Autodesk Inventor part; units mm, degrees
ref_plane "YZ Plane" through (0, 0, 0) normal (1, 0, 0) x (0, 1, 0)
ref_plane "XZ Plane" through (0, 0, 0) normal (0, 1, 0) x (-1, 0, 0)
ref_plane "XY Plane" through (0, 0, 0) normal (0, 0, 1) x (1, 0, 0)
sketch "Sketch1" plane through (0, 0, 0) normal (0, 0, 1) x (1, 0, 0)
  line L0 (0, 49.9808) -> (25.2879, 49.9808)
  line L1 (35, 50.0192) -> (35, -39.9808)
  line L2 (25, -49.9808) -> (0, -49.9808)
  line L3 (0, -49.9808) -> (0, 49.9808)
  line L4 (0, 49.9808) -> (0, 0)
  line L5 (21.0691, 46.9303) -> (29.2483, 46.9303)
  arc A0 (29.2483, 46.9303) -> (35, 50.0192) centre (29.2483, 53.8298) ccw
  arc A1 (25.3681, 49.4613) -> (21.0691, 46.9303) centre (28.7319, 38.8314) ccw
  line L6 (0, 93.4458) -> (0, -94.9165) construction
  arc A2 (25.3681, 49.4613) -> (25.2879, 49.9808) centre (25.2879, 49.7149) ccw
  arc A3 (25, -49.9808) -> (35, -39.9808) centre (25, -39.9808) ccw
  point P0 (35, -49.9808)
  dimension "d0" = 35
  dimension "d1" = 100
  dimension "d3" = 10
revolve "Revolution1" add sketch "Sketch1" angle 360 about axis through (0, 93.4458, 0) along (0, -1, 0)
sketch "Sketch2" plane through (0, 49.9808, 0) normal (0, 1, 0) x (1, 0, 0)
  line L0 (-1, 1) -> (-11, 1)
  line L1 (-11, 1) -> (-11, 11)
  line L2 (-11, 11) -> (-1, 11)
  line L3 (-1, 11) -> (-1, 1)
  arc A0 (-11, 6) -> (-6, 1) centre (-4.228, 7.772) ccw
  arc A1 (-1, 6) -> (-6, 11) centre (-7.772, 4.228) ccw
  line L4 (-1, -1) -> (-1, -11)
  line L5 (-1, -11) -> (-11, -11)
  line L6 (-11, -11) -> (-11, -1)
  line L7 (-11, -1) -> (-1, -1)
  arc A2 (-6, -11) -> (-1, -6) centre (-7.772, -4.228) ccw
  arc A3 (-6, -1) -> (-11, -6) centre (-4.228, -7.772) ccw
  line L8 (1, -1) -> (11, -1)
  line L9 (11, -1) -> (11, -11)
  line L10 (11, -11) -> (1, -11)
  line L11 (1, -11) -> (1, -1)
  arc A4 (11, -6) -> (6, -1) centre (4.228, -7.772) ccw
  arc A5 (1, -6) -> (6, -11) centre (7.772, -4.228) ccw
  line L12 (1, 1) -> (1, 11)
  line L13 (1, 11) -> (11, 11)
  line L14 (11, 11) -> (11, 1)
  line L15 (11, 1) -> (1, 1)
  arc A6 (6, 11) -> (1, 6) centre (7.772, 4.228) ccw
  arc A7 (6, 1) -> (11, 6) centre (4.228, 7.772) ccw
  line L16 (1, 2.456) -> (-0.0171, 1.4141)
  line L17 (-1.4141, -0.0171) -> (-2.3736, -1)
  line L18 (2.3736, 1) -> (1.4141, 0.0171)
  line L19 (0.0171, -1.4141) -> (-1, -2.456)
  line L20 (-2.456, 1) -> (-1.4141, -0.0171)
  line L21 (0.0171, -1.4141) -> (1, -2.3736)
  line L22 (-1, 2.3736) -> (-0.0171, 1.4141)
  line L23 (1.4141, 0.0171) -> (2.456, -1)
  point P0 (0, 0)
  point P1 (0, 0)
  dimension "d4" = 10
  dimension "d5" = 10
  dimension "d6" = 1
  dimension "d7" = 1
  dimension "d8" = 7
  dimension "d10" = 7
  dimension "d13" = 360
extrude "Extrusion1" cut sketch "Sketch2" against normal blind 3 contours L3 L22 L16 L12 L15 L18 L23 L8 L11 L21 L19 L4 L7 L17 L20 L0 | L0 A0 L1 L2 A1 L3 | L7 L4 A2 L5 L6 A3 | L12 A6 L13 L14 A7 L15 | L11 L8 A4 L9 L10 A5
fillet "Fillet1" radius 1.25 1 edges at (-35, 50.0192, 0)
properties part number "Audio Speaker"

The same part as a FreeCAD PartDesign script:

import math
import FreeCAD as App
import Part
import Sketcher

V = App.Vector
Q = App.Units.Quantity


def edges_at(feature, points):
    """Names of the edges that pass closest to the given points."""
    edges = feature.Shape.Edges
    near = lambda p: min(range(len(edges)), key=lambda i: edges[i].distToShape(Part.Vertex(*p))[0])
    return sorted({f"Edge{near(p) + 1}" for p in points})

doc = App.newDocument("Part")
body = doc.addObject("PartDesign::Body", "Body")

# Sketch on XY plane
sketch1 = body.newObject("Sketcher::SketchObject", "Sketch")
sketch1.AttachmentSupport = (doc.getObject("XY_Plane"), [""])
sketch1.MapMode = "FlatFace"
sketch1.addGeometry(Part.LineSegment(V(25.29, 49.98, 0), V(0, 49.98, 0)), False)
sketch1.addGeometry(Part.LineSegment(V(0, 49.98, 0), V(0, -49.98, 0)), False)
sketch1.addGeometry(Part.LineSegment(V(0, -49.98, 0), V(25, -49.98, 0)), False)
sketch1.addGeometry(Part.ArcOfCircle(Part.Circle(V(25, -39.98, 0), V(0, 0, 1), 10), math.radians(-90), math.radians(0)), False)
sketch1.addGeometry(Part.LineSegment(V(35, -39.98, 0), V(35, 50.02, 0)), False)
sketch1.addGeometry(Part.ArcOfCircle(Part.Circle(V(29.25, 53.83, 0), V(0, 0, 1), 6.9), math.radians(-90), math.radians(-34)), False)
sketch1.addGeometry(Part.LineSegment(V(29.25, 46.93, 0), V(21.07, 46.93, 0)), False)
sketch1.addGeometry(Part.ArcOfCircle(Part.Circle(V(28.73, 38.83, 0), V(0, 0, 1), 11.15), math.radians(108), math.radians(133)), False)
sketch1.addGeometry(Part.ArcOfCircle(Part.Circle(V(25.29, 49.71, 0), V(0, 0, 1), 0.27), math.radians(-72), math.radians(90)), False)
sketch1.addConstraint(Sketcher.Constraint("Coincident", 0, 2, 1, 1))
sketch1.addConstraint(Sketcher.Constraint("Coincident", 1, 2, 2, 1))
sketch1.addConstraint(Sketcher.Constraint("Tangent", 2, 2, 3, 1))
sketch1.addConstraint(Sketcher.Constraint("Tangent", 3, 2, 4, 1))
sketch1.addConstraint(Sketcher.Constraint("Coincident", 4, 2, 5, 2))
sketch1.addConstraint(Sketcher.Constraint("Tangent", 5, 1, 6, 1))
sketch1.addConstraint(Sketcher.Constraint("Coincident", 6, 2, 7, 2))
sketch1.addConstraint(Sketcher.Constraint("Tangent", 7, 1, 8, 1))
sketch1.addConstraint(Sketcher.Constraint("Tangent", 8, 2, 0, 1))
sketch1.addConstraint(Sketcher.Constraint("Horizontal", 0))
sketch1.addConstraint(Sketcher.Constraint("Vertical", 1))
sketch1.addConstraint(Sketcher.Constraint("Horizontal", 2))
sketch1.addConstraint(Sketcher.Constraint("Vertical", 4))
sketch1.addConstraint(Sketcher.Constraint("Horizontal", 6))
sketch1.addConstraint(Sketcher.Constraint("Symmetric", 0, 2, 1, 2, -1, 1))
sketch1.addConstraint(Sketcher.Constraint("Radius", 3, Q("10 mm")))
sketch1.addConstraint(Sketcher.Constraint("DistanceX", -1, 1, 3, 2, Q("35 mm")))
sketch1.addConstraint(Sketcher.Constraint("DistanceY", 4, 1, 4, 2, Q("90 mm")))
sketch1.addConstraint(Sketcher.Constraint("Radius", 8, Q("0.266 mm")))
sketch1.addConstraint(Sketcher.Constraint("Radius", 5, Q("6.8995 mm")))
sketch1.addConstraint(Sketcher.Constraint("Radius", 7, Q("11.1494 mm")))
sketch1.addConstraint(Sketcher.Constraint("DistanceX", 0, 2, 0, 1, Q("25.288 mm")))
sketch1.addConstraint(Sketcher.Constraint("DistanceX", 6, 2, 6, 1, Q("8.1792 mm")))
sketch1.addConstraint(Sketcher.Constraint("DistanceY", 1, 2, 1, 1, Q("99.9616 mm")))
sketch1.addConstraint(Sketcher.Constraint("DistanceX", -1, 1, 7, 3, Q("28.732 mm")))
revolution = body.newObject("PartDesign::Revolution", "Revolution")
revolution.Profile = sketch1
revolution.ReferenceAxis = (sketch1, ["V_Axis"])
revolution.Angle = 360

# Sketch on XZ plane
sketch2 = body.newObject("Sketcher::SketchObject", "Sketch001")
sketch2.AttachmentSupport = (doc.getObject("XZ_Plane"), [""])
sketch2.MapMode = "FlatFace"
sketch2.AttachmentOffset = App.Placement(V(0, 0, -49.9808), App.Rotation())
sketch2.addGeometry(Part.LineSegment(V(0, -1.4, 0), V(-1, -2.4, 0)), False)
sketch2.addGeometry(Part.LineSegment(V(-1, -2.4, 0), V(-1, -6, 0)), False)
sketch2.addGeometry(Part.ArcOfCircle(Part.Circle(V(-7.8, -4.2, 0), V(0, 0, 1), 7), math.radians(-75), math.radians(-15)), False)
sketch2.addGeometry(Part.LineSegment(V(-6, -11, 0), V(-11, -11, 0)), False)
sketch2.addGeometry(Part.LineSegment(V(-11, -11, 0), V(-11, -6, 0)), False)
sketch2.addGeometry(Part.ArcOfCircle(Part.Circle(V(-4.2, -7.8, 0), V(0, 0, 1), 7), math.radians(105), math.radians(165)), False)
sketch2.addGeometry(Part.LineSegment(V(-6, -1, 0), V(-2.5, -1, 0)), False)
sketch2.addGeometry(Part.LineSegment(V(-2.5, -1, 0), V(-1.4, 0, 0)), False)
sketch2.addGeometry(Part.LineSegment(V(-1.4, 0, 0), V(-2.4, 1, 0)), False)
sketch2.addGeometry(Part.LineSegment(V(-2.4, 1, 0), V(-6, 1, 0)), False)
sketch2.addGeometry(Part.ArcOfCircle(Part.Circle(V(-4.2, 7.8, 0), V(0, 0, 1), 7), math.radians(-165), math.radians(-105)), False)
sketch2.addGeometry(Part.LineSegment(V(-11, 6, 0), V(-11, 11, 0)), False)
sketch2.addGeometry(Part.LineSegment(V(-11, 11, 0), V(-6, 11, 0)), False)
sketch2.addGeometry(Part.ArcOfCircle(Part.Circle(V(-7.8, 4.2, 0), V(0, 0, 1), 7), math.radians(15), math.radians(75)), False)
sketch2.addGeometry(Part.LineSegment(V(-1, 6, 0), V(-1, 2.5, 0)), False)
sketch2.addGeometry(Part.LineSegment(V(-1, 2.5, 0), V(0, 1.4, 0)), False)
sketch2.addGeometry(Part.LineSegment(V(0, 1.4, 0), V(1, 2.4, 0)), False)
sketch2.addGeometry(Part.LineSegment(V(1, 2.4, 0), V(1, 6, 0)), False)
sketch2.addGeometry(Part.ArcOfCircle(Part.Circle(V(7.8, 4.2, 0), V(0, 0, 1), 7), math.radians(105), math.radians(165)), False)
sketch2.addGeometry(Part.LineSegment(V(6, 11, 0), V(11, 11, 0)), False)
sketch2.addGeometry(Part.LineSegment(V(11, 11, 0), V(11, 6, 0)), False)
sketch2.addGeometry(Part.ArcOfCircle(Part.Circle(V(4.2, 7.8, 0), V(0, 0, 1), 7), math.radians(-75), math.radians(-15)), False)
sketch2.addGeometry(Part.LineSegment(V(6, 1, 0), V(2.5, 1, 0)), False)
sketch2.addGeometry(Part.LineSegment(V(2.5, 1, 0), V(1.4, 0, 0)), False)
sketch2.addGeometry(Part.LineSegment(V(1.4, 0, 0), V(2.4, -1, 0)), False)
sketch2.addGeometry(Part.LineSegment(V(2.4, -1, 0), V(6, -1, 0)), False)
sketch2.addGeometry(Part.ArcOfCircle(Part.Circle(V(4.2, -7.8, 0), V(0, 0, 1), 7), math.radians(15), math.radians(75)), False)
sketch2.addGeometry(Part.LineSegment(V(11, -6, 0), V(11, -11, 0)), False)
sketch2.addGeometry(Part.LineSegment(V(11, -11, 0), V(6, -11, 0)), False)
sketch2.addGeometry(Part.ArcOfCircle(Part.Circle(V(7.8, -4.2, 0), V(0, 0, 1), 7), math.radians(-165), math.radians(-105)), False)
sketch2.addGeometry(Part.LineSegment(V(1, -6, 0), V(1, -2.5, 0)), False)
sketch2.addGeometry(Part.LineSegment(V(1, -2.5, 0), V(0, -1.4, 0)), False)
sketch2.addConstraint(Sketcher.Constraint("Coincident", 0, 2, 1, 1))
sketch2.addConstraint(Sketcher.Constraint("Coincident", 1, 2, 2, 2))
sketch2.addConstraint(Sketcher.Constraint("Coincident", 2, 1, 3, 1))
sketch2.addConstraint(Sketcher.Constraint("Coincident", 3, 2, 4, 1))
sketch2.addConstraint(Sketcher.Constraint("Coincident", 4, 2, 5, 2))
sketch2.addConstraint(Sketcher.Constraint("Coincident", 5, 1, 6, 1))
sketch2.addConstraint(Sketcher.Constraint("Coincident", 6, 2, 7, 1))
sketch2.addConstraint(Sketcher.Constraint("Coincident", 7, 2, 8, 1))
sketch2.addConstraint(Sketcher.Constraint("Coincident", 8, 2, 9, 1))
sketch2.addConstraint(Sketcher.Constraint("Coincident", 9, 2, 10, 2))
sketch2.addConstraint(Sketcher.Constraint("Coincident", 10, 1, 11, 1))
sketch2.addConstraint(Sketcher.Constraint("Coincident", 11, 2, 12, 1))
sketch2.addConstraint(Sketcher.Constraint("Coincident", 12, 2, 13, 2))
sketch2.addConstraint(Sketcher.Constraint("Coincident", 13, 1, 14, 1))
sketch2.addConstraint(Sketcher.Constraint("Coincident", 14, 2, 15, 1))
sketch2.addConstraint(Sketcher.Constraint("Coincident", 15, 2, 16, 1))
sketch2.addConstraint(Sketcher.Constraint("Coincident", 16, 2, 17, 1))
sketch2.addConstraint(Sketcher.Constraint("Coincident", 17, 2, 18, 2))
sketch2.addConstraint(Sketcher.Constraint("Coincident", 18, 1, 19, 1))
sketch2.addConstraint(Sketcher.Constraint("Coincident", 19, 2, 20, 1))
sketch2.addConstraint(Sketcher.Constraint("Coincident", 20, 2, 21, 2))
sketch2.addConstraint(Sketcher.Constraint("Coincident", 21, 1, 22, 1))
sketch2.addConstraint(Sketcher.Constraint("Coincident", 22, 2, 23, 1))
sketch2.addConstraint(Sketcher.Constraint("Coincident", 23, 2, 24, 1))
sketch2.addConstraint(Sketcher.Constraint("Coincident", 24, 2, 25, 1))
sketch2.addConstraint(Sketcher.Constraint("Coincident", 25, 2, 26, 2))
sketch2.addConstraint(Sketcher.Constraint("Coincident", 26, 1, 27, 1))
sketch2.addConstraint(Sketcher.Constraint("Coincident", 27, 2, 28, 1))
sketch2.addConstraint(Sketcher.Constraint("Coincident", 28, 2, 29, 2))
sketch2.addConstraint(Sketcher.Constraint("Coincident", 29, 1, 30, 1))
sketch2.addConstraint(Sketcher.Constraint("Coincident", 30, 2, 31, 1))
sketch2.addConstraint(Sketcher.Constraint("Coincident", 31, 2, 0, 1))
sketch2.addConstraint(Sketcher.Constraint("Vertical", 1))
sketch2.addConstraint(Sketcher.Constraint("Horizontal", 3))
sketch2.addConstraint(Sketcher.Constraint("Vertical", 4))
sketch2.addConstraint(Sketcher.Constraint("Horizontal", 6))
sketch2.addConstraint(Sketcher.Constraint("Horizontal", 9))
sketch2.addConstraint(Sketcher.Constraint("Vertical", 11))
sketch2.addConstraint(Sketcher.Constraint("Horizontal", 12))
sketch2.addConstraint(Sketcher.Constraint("Vertical", 14))
sketch2.addConstraint(Sketcher.Constraint("Vertical", 17))
sketch2.addConstraint(Sketcher.Constraint("Horizontal", 19))
sketch2.addConstraint(Sketcher.Constraint("Vertical", 20))
sketch2.addConstraint(Sketcher.Constraint("Horizontal", 22))
sketch2.addConstraint(Sketcher.Constraint("Horizontal", 25))
sketch2.addConstraint(Sketcher.Constraint("Vertical", 27))
sketch2.addConstraint(Sketcher.Constraint("Horizontal", 28))
sketch2.addConstraint(Sketcher.Constraint("Vertical", 30))
sketch2.addConstraint(Sketcher.Constraint("Equal", 2, 5))
sketch2.addConstraint(Sketcher.Constraint("Equal", 5, 10))
sketch2.addConstraint(Sketcher.Constraint("Equal", 10, 13))
sketch2.addConstraint(Sketcher.Constraint("Equal", 13, 18))
sketch2.addConstraint(Sketcher.Constraint("Equal", 18, 21))
sketch2.addConstraint(Sketcher.Constraint("Equal", 21, 26))
sketch2.addConstraint(Sketcher.Constraint("Equal", 26, 29))
sketch2.addConstraint(Sketcher.Constraint("Symmetric", 2, 3, 18, 3, -1, 1))
sketch2.addConstraint(Sketcher.Constraint("Symmetric", 5, 3, 21, 3, -1, 1))
sketch2.addConstraint(Sketcher.Constraint("Symmetric", 10, 3, 26, 3, -1, 1))
sketch2.addConstraint(Sketcher.Constraint("Symmetric", 13, 3, 29, 3, -1, 1))
sketch2.addConstraint(Sketcher.Constraint("Symmetric", 0, 2, 16, 2, -1, 1))
sketch2.addConstraint(Sketcher.Constraint("Symmetric", 3, 2, 19, 2, -1, 1))
sketch2.addConstraint(Sketcher.Constraint("Symmetric", 6, 2, 22, 2, -1, 1))
sketch2.addConstraint(Sketcher.Constraint("Symmetric", 7, 2, 23, 2, -1, 1))
sketch2.addConstraint(Sketcher.Constraint("Symmetric", 8, 2, 24, 2, -1, 1))
sketch2.addConstraint(Sketcher.Constraint("Symmetric", 11, 2, 27, 2, -1, 1))
sketch2.addConstraint(Sketcher.Constraint("Symmetric", 14, 2, 30, 2, -1, 1))
sketch2.addConstraint(Sketcher.Constraint("Symmetric", 15, 2, 31, 2, -1, 1))
sketch2.addConstraint(Sketcher.Constraint("Symmetric", 13, 3, 18, 3, -2))
sketch2.addConstraint(Sketcher.Constraint("Symmetric", 10, 3, 21, 3, -2))
sketch2.addConstraint(Sketcher.Constraint("Symmetric", 11, 2, 19, 2, -2))
sketch2.addConstraint(Sketcher.Constraint("Parallel", 0, 7))
sketch2.addConstraint(Sketcher.Constraint("Perpendicular", 7, 8))
sketch2.addConstraint(Sketcher.Constraint("Parallel", 8, 15))
sketch2.addConstraint(Sketcher.Constraint("Horizontal", 1, 2, 4, 2))
sketch2.addConstraint(Sketcher.Constraint("Horizontal", 10, 1, 13, 1))
sketch2.addConstraint(Sketcher.Constraint("Horizontal", 9, 2, 21, 1))
sketch2.addConstraint(Sketcher.Constraint("Vertical", 2, 1, 5, 1))
sketch2.addConstraint(Sketcher.Constraint("Equal", 25, 1))
sketch2.addConstraint(Sketcher.Constraint("Equal", 28, 4))
sketch2.addConstraint(Sketcher.Constraint("Equal", 22, 14))
sketch2.addConstraint(Sketcher.Constraint("Equal", 0, 8))
sketch2.addConstraint(Sketcher.Constraint("Radius", 2, Q("7 mm")))
sketch2.addConstraint(Sketcher.Constraint("DistanceX", 0, 2, -1, 1, Q("1 mm")))
sketch2.addConstraint(Sketcher.Constraint("DistanceX", 3, 2, 1, 2, Q("10 mm")))
sketch2.addConstraint(Sketcher.Constraint("DistanceY", 5, 1, 10, 1, Q("7 mm")))
sketch2.addConstraint(Sketcher.Constraint("DistanceY", 9, 2, 11, 2, Q("10 mm")))
sketch2.addConstraint(Sketcher.Constraint("Angle", 0, Q("-135.6902 deg")))
sketch2.addConstraint(Sketcher.Constraint("DistanceX", 6, 1, 6, 2, Q("3.544 mm")))
sketch2.addConstraint(Sketcher.Constraint("DistanceX", 7, 2, 22, 2, Q("3.87 mm")))
pocket1 = body.newObject("PartDesign::Pocket", "Pocket")
pocket1.Profile = sketch2
pocket1.Length = 3
pocket1.Reversed = True
doc.recompute()

fillet = body.newObject("PartDesign::Fillet", "Fillet")
fillet.Base = (pocket1, edges_at(pocket1, [(-35, 50.019, 0)]))
fillet.Radius = 1.25

doc.recompute()
